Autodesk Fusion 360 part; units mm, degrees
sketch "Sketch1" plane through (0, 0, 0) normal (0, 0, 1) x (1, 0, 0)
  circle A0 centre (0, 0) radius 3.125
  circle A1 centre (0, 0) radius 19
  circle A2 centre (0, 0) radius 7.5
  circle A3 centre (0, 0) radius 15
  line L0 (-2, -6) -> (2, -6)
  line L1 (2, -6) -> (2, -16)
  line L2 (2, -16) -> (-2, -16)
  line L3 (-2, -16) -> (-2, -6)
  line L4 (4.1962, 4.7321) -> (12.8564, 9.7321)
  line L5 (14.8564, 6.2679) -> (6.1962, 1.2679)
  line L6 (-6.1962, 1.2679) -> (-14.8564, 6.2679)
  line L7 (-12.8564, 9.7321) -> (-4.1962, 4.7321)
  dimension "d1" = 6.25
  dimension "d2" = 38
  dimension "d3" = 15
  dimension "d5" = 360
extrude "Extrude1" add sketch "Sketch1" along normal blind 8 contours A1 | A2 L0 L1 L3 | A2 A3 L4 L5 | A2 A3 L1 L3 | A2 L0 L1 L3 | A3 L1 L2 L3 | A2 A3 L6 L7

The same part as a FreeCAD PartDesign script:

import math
import FreeCAD as App
import Part
import Sketcher
from FreeCAD import Vector
Q = App.Units.Quantity

doc = App.newDocument("Part")
params = doc.addObject("Spreadsheet::Sheet", "Params")
for row, (alias, value) in enumerate([
    ("sketch1_diameter", "38 mm"),
    ("sketch1_radius", "15 mm"),
    ("sketch1_radius2", "7.5 mm"),
    ("sketch1_diameter2", "6.25 mm"),
    ("pad1_length", "8 mm"),
], start=1):
    params.set(f"A{row}", alias)
    params.set(f"B{row}", "=" + value)
    params.setAlias(f"B{row}", alias)

body = doc.addObject("PartDesign::Body", "Body")

# Sketch on XY plane
sketch1 = body.newObject("Sketcher::SketchObject", "Sketch")
sketch1.AttachmentSupport = (doc.getObject("XY_Plane"), [""])
sketch1.MapMode = "FlatFace"
sketch1.addGeometry([
    Part.Circle(Vector(0, 0, 0), Vector(0, 0, 1), 19),  # 0
    Part.ArcOfCircle(Part.Circle(Vector(0, 0, 0), Vector(0, 0, 1), 15), math.radians(37.66242), math.radians(142.33758)),  # 1
    Part.LineSegment(Vector(11.874367, 9.165119, 0), Vector(5.259976, 5.346275, 0)),  # 2
    Part.ArcOfCircle(Part.Circle(Vector(0, 0, 0), Vector(0, 0, 1), 7.5), math.radians(45.466185), math.radians(134.533815)),  # 3
    Part.LineSegment(Vector(-5.259976, 5.346275, 0), Vector(-11.874367, 9.165119, 0)),  # 4
    Part.ArcOfCircle(Part.Circle(Vector(0, 0, 0), Vector(0, 0, 1), 15), math.radians(157.662419), math.radians(262.337744)),  # 5
    Part.LineSegment(Vector(-13.874409, 5.700944, 0), Vector(-7.260008, 1.882094, 0)),  # 6
    Part.ArcOfCircle(Part.Circle(Vector(0, 0, 0), Vector(0, 0, 1), 7.5), math.radians(165.46651), math.radians(254.53399)),  # 7
    Part.LineSegment(Vector(-2, -7.228416, 0), Vector(-2, -14.866069, 0)),  # 8
    Part.LineSegment(Vector(2, -14.866069, 0), Vector(2, -7.228416, 0)),  # 9
    Part.ArcOfCircle(Part.Circle(Vector(0, 0, 0), Vector(0, 0, 1), 7.5), math.radians(-74.53399), math.radians(14.53349)),  # 10
    Part.LineSegment(Vector(7.260008, 1.882094, 0), Vector(13.874409, 5.700944, 0)),  # 11
    Part.ArcOfCircle(Part.Circle(Vector(0, 0, 0), Vector(0, 0, 1), 15), math.radians(-82.337744), math.radians(22.337581)),  # 12
    Part.Circle(Vector(0, 0, 0), Vector(0, 0, 1), 3.125),  # 13
], False)
sketch1.addConstraint([
    Sketcher.Constraint("Coincident", 1, 1, 2, 1),
    Sketcher.Constraint("Coincident", 2, 2, 3, 1),
    Sketcher.Constraint("Coincident", 3, 2, 4, 1),
    Sketcher.Constraint("Coincident", 4, 2, 1, 2),
    Sketcher.Constraint("Coincident", 5, 1, 6, 1),
    Sketcher.Constraint("Coincident", 6, 2, 7, 1),
    Sketcher.Constraint("Coincident", 7, 2, 8, 1),
    Sketcher.Constraint("Coincident", 8, 2, 5, 2),
    Sketcher.Constraint("Coincident", 9, 2, 10, 1),
    Sketcher.Constraint("Coincident", 10, 2, 11, 1),
    Sketcher.Constraint("Coincident", 11, 2, 12, 2),
    Sketcher.Constraint("Coincident", 12, 1, 9, 1),
    Sketcher.Constraint("Vertical", 8),
    Sketcher.Constraint("Vertical", 9),
    Sketcher.Constraint("Coincident", 0, 3, -1, 1),
    Sketcher.Constraint("Coincident", 1, 3, -1, 1),
    Sketcher.Constraint("Coincident", 3, 3, -1, 1),
    Sketcher.Constraint("Coincident", 5, 3, -1, 1),
    Sketcher.Constraint("Coincident", 7, 3, -1, 1),
    Sketcher.Constraint("Coincident", 10, 3, -1, 1),
    Sketcher.Constraint("Coincident", 12, 3, -1, 1),
    Sketcher.Constraint("Coincident", 13, 3, -1, 1),
    Sketcher.Constraint("Equal", 1, 5),
    Sketcher.Constraint("Equal", 3, 7),
    Sketcher.Constraint("Equal", 7, 10),
    Sketcher.Constraint("Equal", 5, 12),
    Sketcher.Constraint("Parallel", 4, 6),
    Sketcher.Constraint("Parallel", 2, 11),
    Sketcher.Constraint("Horizontal", 2, 2, 3, 2),
    Sketcher.Constraint("Horizontal", 1, 1, 4, 2),
    Sketcher.Constraint("Horizontal", 7, 2, 9, 2),
    Sketcher.Constraint("Horizontal", 6, 2, 10, 2),
    Sketcher.Constraint("Equal", 4, 6),
    Sketcher.Constraint("Diameter", 0, 38.0),
    Sketcher.Constraint("Radius", 1, 15.0),
    Sketcher.Constraint("Radius", 3, 7.5),
    Sketcher.Constraint("Diameter", 13, 6.25),
    Sketcher.Constraint("Angle", 2, Q("-149.9998 deg")),
    Sketcher.Constraint("DistanceX", 7, 2, -1, 1, 2.0),
    Sketcher.Constraint("DistanceX", 5, 1, 4, 2, 2.0),
])
sketch1.setExpression("Constraints[33]", "Params.sketch1_diameter")
sketch1.setExpression("Constraints[34]", "Params.sketch1_radius")
sketch1.setExpression("Constraints[35]", "Params.sketch1_radius2")
sketch1.setExpression("Constraints[36]", "Params.sketch1_diameter2")
pad1 = body.newObject("PartDesign::Pad", "Pad")
pad1.Profile = sketch1
pad1.setExpression("Length", "Params.pad1_length")

doc.recompute()
